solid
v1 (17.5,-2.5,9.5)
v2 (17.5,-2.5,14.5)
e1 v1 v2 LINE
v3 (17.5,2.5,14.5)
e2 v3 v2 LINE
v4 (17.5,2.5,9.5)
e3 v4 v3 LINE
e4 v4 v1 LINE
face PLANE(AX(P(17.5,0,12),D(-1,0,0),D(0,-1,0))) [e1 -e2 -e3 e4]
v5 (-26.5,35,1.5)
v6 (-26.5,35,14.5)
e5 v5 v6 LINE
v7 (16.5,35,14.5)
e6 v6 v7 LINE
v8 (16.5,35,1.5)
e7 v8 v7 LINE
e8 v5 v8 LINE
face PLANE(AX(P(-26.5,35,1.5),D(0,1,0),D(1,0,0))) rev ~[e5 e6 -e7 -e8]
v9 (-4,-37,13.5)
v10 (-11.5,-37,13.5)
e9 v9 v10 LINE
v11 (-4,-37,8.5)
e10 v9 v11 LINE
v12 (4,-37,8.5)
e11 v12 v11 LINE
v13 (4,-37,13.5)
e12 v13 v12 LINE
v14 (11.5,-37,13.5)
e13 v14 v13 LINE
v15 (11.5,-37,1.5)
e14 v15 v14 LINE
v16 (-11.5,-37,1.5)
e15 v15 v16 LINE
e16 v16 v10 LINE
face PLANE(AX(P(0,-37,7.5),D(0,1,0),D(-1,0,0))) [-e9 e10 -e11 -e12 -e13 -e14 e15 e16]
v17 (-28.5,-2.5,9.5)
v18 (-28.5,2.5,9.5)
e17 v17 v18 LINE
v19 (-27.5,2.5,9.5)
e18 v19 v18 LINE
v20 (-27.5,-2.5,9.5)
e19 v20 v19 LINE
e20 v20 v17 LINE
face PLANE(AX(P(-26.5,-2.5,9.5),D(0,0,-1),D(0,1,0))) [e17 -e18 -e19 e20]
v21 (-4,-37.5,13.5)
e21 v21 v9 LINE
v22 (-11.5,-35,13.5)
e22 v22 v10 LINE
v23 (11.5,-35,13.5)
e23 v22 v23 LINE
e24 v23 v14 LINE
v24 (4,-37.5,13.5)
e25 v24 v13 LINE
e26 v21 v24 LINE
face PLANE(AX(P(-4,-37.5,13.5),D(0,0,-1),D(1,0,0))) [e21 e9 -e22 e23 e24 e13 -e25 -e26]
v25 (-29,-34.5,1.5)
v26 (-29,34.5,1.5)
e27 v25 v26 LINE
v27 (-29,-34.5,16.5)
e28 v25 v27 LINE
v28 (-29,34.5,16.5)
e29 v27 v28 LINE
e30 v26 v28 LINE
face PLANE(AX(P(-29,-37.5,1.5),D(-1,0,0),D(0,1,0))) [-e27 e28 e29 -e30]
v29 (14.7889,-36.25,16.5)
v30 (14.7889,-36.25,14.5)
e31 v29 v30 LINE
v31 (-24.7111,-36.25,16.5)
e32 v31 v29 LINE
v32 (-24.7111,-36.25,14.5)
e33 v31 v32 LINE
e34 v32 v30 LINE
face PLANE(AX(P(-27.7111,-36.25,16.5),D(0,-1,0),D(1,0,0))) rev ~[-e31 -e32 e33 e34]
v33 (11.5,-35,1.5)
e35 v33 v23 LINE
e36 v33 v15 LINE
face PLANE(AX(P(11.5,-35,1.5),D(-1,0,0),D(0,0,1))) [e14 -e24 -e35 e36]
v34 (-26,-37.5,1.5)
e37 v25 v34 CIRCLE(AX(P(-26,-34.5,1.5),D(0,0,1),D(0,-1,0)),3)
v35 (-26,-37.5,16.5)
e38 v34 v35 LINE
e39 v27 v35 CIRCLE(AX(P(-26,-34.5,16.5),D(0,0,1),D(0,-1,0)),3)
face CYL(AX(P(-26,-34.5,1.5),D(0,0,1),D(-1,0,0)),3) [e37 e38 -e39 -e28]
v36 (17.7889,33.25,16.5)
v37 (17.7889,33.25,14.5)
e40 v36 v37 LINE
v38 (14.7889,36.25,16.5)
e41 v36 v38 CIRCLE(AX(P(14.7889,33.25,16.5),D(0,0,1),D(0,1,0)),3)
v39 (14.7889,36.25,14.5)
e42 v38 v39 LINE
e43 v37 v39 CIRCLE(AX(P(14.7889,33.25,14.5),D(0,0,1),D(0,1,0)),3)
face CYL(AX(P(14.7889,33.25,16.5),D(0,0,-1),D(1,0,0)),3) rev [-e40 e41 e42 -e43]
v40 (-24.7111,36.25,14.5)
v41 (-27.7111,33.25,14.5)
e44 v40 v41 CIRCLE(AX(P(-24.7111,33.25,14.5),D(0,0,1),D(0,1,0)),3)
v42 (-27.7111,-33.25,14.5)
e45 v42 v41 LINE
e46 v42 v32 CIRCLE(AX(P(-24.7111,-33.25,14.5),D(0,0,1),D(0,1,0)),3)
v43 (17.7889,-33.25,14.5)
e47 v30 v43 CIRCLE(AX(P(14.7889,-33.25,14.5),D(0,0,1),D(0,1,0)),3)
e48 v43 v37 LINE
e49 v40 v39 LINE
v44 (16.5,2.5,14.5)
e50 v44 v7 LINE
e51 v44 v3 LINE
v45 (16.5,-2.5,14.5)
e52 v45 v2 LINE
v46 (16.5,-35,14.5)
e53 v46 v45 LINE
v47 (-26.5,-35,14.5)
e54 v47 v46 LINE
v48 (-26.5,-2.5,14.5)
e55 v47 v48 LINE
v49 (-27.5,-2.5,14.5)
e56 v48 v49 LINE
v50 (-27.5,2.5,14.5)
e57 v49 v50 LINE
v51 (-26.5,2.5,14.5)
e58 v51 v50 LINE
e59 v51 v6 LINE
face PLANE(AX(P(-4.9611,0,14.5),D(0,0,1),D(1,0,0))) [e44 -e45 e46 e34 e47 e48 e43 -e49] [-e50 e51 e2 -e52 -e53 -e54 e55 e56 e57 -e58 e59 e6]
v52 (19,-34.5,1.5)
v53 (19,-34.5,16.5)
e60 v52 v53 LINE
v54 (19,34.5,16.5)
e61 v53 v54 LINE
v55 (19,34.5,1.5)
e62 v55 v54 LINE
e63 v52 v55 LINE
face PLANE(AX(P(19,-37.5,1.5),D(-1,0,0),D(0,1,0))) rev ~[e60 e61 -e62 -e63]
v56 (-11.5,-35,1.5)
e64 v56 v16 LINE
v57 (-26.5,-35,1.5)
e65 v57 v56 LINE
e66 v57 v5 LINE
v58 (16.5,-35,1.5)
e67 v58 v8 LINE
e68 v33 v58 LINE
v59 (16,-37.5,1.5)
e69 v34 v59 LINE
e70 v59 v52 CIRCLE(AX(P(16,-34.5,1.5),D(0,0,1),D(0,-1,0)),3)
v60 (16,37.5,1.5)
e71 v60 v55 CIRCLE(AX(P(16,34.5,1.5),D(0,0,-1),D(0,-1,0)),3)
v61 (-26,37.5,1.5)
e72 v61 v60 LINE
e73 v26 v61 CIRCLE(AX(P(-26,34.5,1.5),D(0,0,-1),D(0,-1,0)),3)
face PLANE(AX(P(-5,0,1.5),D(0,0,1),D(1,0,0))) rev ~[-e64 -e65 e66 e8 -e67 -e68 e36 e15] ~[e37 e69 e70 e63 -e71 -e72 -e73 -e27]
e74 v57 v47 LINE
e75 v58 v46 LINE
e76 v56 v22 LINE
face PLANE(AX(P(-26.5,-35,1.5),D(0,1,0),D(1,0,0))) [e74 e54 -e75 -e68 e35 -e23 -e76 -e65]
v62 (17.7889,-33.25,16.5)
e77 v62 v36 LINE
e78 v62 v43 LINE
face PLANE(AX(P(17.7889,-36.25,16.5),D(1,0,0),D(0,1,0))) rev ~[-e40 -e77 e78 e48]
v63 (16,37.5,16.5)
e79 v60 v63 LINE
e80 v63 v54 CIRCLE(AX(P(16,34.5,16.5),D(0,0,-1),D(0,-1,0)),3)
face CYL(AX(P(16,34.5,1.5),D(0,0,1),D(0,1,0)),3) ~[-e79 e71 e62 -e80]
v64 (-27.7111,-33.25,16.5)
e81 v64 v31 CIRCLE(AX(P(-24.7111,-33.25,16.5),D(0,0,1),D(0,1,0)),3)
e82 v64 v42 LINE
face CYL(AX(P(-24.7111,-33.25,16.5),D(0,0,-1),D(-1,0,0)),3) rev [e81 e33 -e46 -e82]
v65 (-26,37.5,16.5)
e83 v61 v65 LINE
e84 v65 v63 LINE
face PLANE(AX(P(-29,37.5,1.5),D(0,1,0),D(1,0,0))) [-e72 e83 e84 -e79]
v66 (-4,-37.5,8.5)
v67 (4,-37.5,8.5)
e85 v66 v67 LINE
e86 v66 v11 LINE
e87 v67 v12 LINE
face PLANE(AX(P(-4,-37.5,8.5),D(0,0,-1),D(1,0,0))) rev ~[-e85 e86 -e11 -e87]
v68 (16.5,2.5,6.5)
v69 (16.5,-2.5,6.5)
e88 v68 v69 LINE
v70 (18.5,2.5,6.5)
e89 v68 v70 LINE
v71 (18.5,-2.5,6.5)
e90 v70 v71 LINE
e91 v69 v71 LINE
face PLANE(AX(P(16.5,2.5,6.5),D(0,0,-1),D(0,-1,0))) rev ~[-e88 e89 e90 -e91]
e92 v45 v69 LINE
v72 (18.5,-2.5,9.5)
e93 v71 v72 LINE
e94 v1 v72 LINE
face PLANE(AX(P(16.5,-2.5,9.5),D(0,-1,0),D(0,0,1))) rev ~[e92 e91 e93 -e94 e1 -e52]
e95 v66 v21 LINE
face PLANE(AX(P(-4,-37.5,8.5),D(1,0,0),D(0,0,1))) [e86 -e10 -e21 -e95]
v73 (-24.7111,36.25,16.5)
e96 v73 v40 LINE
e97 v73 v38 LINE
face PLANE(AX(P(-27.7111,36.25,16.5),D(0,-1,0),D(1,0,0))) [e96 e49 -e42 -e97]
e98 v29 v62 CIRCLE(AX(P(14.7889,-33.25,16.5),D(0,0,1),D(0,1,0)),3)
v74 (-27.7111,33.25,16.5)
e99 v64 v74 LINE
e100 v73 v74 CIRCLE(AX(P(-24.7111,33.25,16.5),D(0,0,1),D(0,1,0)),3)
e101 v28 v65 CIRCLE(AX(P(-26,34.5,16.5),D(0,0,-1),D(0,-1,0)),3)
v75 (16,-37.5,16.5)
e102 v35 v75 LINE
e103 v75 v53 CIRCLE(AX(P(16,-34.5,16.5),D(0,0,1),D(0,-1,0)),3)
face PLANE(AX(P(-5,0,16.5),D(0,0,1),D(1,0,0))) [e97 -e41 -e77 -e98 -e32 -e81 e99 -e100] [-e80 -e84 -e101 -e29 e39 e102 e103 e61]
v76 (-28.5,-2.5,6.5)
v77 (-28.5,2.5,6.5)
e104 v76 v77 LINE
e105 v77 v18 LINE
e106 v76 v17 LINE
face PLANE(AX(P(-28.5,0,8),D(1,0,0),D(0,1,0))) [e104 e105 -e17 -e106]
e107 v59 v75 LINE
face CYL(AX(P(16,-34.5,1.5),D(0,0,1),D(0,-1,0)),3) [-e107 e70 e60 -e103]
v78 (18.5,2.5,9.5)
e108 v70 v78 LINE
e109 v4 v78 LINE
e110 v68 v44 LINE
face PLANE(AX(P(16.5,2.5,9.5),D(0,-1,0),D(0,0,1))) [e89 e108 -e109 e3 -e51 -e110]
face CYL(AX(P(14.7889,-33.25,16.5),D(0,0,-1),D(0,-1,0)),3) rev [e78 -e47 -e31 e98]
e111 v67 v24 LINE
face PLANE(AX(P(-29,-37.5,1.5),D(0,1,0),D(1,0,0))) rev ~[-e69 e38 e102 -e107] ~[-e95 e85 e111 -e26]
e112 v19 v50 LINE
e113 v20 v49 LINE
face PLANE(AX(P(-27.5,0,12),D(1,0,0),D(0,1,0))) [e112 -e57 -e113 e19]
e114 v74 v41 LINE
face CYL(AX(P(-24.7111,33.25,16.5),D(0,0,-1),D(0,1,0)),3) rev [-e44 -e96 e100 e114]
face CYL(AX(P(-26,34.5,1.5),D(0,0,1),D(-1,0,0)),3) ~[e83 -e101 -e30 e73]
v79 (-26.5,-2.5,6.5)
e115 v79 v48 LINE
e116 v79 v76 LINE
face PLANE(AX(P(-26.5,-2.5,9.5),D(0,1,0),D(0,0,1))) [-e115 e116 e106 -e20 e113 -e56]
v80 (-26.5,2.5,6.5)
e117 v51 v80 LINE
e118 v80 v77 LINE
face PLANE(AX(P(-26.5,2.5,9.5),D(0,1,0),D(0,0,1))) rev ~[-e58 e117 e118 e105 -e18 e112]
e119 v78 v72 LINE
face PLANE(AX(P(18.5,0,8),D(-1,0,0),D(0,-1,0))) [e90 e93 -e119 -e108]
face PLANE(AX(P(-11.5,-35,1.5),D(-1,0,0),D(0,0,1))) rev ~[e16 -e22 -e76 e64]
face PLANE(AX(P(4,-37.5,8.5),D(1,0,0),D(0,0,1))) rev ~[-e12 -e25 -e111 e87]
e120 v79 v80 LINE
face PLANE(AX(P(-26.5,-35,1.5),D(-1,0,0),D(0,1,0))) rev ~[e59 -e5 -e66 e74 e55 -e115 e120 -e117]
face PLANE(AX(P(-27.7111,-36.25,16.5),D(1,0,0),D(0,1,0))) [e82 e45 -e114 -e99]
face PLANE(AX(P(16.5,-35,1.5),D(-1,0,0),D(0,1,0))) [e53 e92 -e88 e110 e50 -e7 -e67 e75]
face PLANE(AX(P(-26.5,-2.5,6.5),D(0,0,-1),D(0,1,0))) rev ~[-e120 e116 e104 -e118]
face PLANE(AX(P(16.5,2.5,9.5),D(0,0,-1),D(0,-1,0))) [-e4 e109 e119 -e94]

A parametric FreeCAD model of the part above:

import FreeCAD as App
import Part
import Sketcher
from FreeCAD import Vector


def edges_at(feature, points):
    """Names of the edges that pass closest to the given points."""
    edges = feature.Shape.Edges
    near = lambda p: min(range(len(edges)), key=lambda i: edges[i].distToShape(Part.Vertex(*p))[0])
    return sorted({f"Edge{near(p) + 1}" for p in points})

doc = App.newDocument("Part")
params = doc.addObject("Spreadsheet::Sheet", "Params")
for row, (alias, value) in enumerate([
    ("sketch1_width", "48 mm"),
    ("sketch1_width2", "43 mm"),
    ("sketch1_height", "75 mm"),
    ("sketch1_height2", "70 mm"),
    ("pad1_length", "15 mm"),
    ("sketch2_width", "45.5 mm"),
    ("sketch2_height", "72.5 mm"),
    ("pocket1_length", "2 mm"),
    ("fillet_radius", "3 mm"),
    ("fillet2_radius", "3 mm"),
    ("fillet3_radius", "3 mm"),
    ("fillet4_radius", "3 mm"),
    ("fillet5_radius", "3 mm"),
    ("fillet6_radius", "3 mm"),
    ("sketch3_width", "5 mm"),
    ("pocket2_length", "1 mm"),
    ("sketch4_width", "5 mm"),
    ("sketch4_height", "3 mm"),
    ("pocket3_length", "2 mm"),
    ("sketch5_width", "5 mm"),
    ("pocket4_length", "1 mm"),
    ("sketch6_width", "5 mm"),
    ("sketch6_height", "3 mm"),
    ("pocket5_length", "2 mm"),
    ("sketch7_width", "23 mm"),
    ("sketch7_height", "12 mm"),
    ("pocket6_length", "2 mm"),
    ("sketch8_width", "8 mm"),
    ("sketch8_height", "5 mm"),
    ("pocket7_length", "5 mm"),
], start=1):
    params.set(f"A{row}", alias)
    params.set(f"B{row}", "=" + value)
    params.setAlias(f"B{row}", alias)

body = doc.addObject("PartDesign::Body", "Body")

# Sketch on XY plane
sketch1 = body.newObject("Sketcher::SketchObject", "Sketch")
sketch1.AttachmentSupport = (doc.getObject("XY_Plane"), [""])
sketch1.MapMode = "FlatFace"
sketch1.AttachmentOffset = App.Placement(Vector(0, 0, 1.5), App.Rotation())
sketch1.addGeometry([
    Part.LineSegment(Vector(-29, 37.5, 0), Vector(-29, -37.5, 0)),  # 0
    Part.LineSegment(Vector(-29, -37.5, 0), Vector(19, -37.5, 0)),  # 1
    Part.LineSegment(Vector(19, -37.5, 0), Vector(19, 37.5, 0)),  # 2
    Part.LineSegment(Vector(19, 37.5, 0), Vector(-29, 37.5, 0)),  # 3
    Part.LineSegment(Vector(16.5, -35, 0), Vector(-26.5, -35, 0)),  # 4
    Part.LineSegment(Vector(-26.5, -35, 0), Vector(-26.5, 35, 0)),  # 5
    Part.LineSegment(Vector(-26.5, 35, 0), Vector(16.5, 35, 0)),  # 6
    Part.LineSegment(Vector(16.5, 35, 0), Vector(16.5, -35, 0)),  # 7
], False)
sketch1.addConstraint([
    Sketcher.Constraint("Coincident", 0, 2, 1, 1),
    Sketcher.Constraint("Coincident", 1, 2, 2, 1),
    Sketcher.Constraint("Coincident", 2, 2, 3, 1),
    Sketcher.Constraint("Coincident", 3, 2, 0, 1),
    Sketcher.Constraint("Coincident", 4, 2, 5, 1),
    Sketcher.Constraint("Coincident", 5, 2, 6, 1),
    Sketcher.Constraint("Coincident", 6, 2, 7, 1),
    Sketcher.Constraint("Coincident", 7, 2, 4, 1),
    Sketcher.Constraint("Vertical", 0),
    Sketcher.Constraint("Horizontal", 1),
    Sketcher.Constraint("Vertical", 2),
    Sketcher.Constraint("Horizontal", 3),
    Sketcher.Constraint("Horizontal", 4),
    Sketcher.Constraint("Vertical", 5),
    Sketcher.Constraint("Horizontal", 6),
    Sketcher.Constraint("Vertical", 7),
    Sketcher.Constraint("DistanceX", 1, 1, 1, 2, 48.0),
    Sketcher.Constraint("DistanceX", 4, 2, 4, 1, 43.0),
    Sketcher.Constraint("DistanceY", 0, 2, 0, 1, 75.0),
    Sketcher.Constraint("DistanceY", 5, 1, 5, 2, 70.0),
    Sketcher.Constraint("DistanceX", 0, 2, -1, 1, 29.0),
    Sketcher.Constraint("DistanceY", 4, 2, -1, 1, 35.0),
    Sketcher.Constraint("DistanceY", 0, 2, -1, 1, 37.5),
    Sketcher.Constraint("DistanceX", 4, 2, -1, 1, 26.5),
])
sketch1.setExpression("Constraints[16]", "Params.sketch1_width")
sketch1.setExpression("Constraints[17]", "Params.sketch1_width2")
sketch1.setExpression("Constraints[18]", "Params.sketch1_height")
sketch1.setExpression("Constraints[19]", "Params.sketch1_height2")
pad1 = body.newObject("PartDesign::Pad", "Pad")
pad1.Profile = sketch1
pad1.setExpression("Length", "Params.pad1_length")

# Sketch on XY plane
sketch2 = body.newObject("Sketcher::SketchObject", "Sketch001")
sketch2.AttachmentSupport = (doc.getObject("XY_Plane"), [""])
sketch2.MapMode = "FlatFace"
sketch2.AttachmentOffset = App.Placement(Vector(0, 0, 16.5), App.Rotation())
sketch2.addGeometry([
    Part.LineSegment(Vector(-27.7111, 36.25, 0), Vector(-27.7111, -36.25, 0)),
    Part.LineSegment(Vector(-27.7111, -36.25, 0), Vector(17.7889, -36.25, 0)),
    Part.LineSegment(Vector(17.7889, -36.25, 0), Vector(17.7889, 36.25, 0)),
    Part.LineSegment(Vector(17.7889, 36.25, 0), Vector(-27.7111, 36.25, 0)),
], False)
sketch2.addConstraint([
    Sketcher.Constraint("Coincident", 0, 2, 1, 1),
    Sketcher.Constraint("Coincident", 1, 2, 2, 1),
    Sketcher.Constraint("Coincident", 2, 2, 3, 1),
    Sketcher.Constraint("Coincident", 3, 2, 0, 1),
    Sketcher.Constraint("Vertical", 0),
    Sketcher.Constraint("Horizontal", 1),
    Sketcher.Constraint("Vertical", 2),
    Sketcher.Constraint("Horizontal", 3),
    Sketcher.Constraint("DistanceX", 1, 1, 1, 2, 45.5),
    Sketcher.Constraint("DistanceY", 0, 2, 0, 1, 72.5),
    Sketcher.Constraint("DistanceY", 0, 2, -1, 1, 36.25),
    Sketcher.Constraint("DistanceX", 0, 2, -1, 1, 27.7111),
])
sketch2.setExpression("Constraints[8]", "Params.sketch2_width")
sketch2.setExpression("Constraints[9]", "Params.sketch2_height")
pocket1 = body.newObject("PartDesign::Pocket", "Pocket")
pocket1.Profile = sketch2
pocket1.setExpression("Length", "Params.pocket1_length")
doc.recompute()

fillet = body.newObject("PartDesign::Fillet", "Fillet")
fillet.Base = (pocket1, edges_at(pocket1, [(-27.711, 36.25, 15.5)]))
fillet.setExpression("Radius", "Params.fillet_radius")
doc.recompute()

fillet2 = body.newObject("PartDesign::Fillet", "Fillet001")
fillet2.Base = (fillet, edges_at(fillet, [(-27.711, -36.25, 15.5)]))
fillet2.setExpression("Radius", "Params.fillet2_radius")
doc.recompute()

fillet3 = body.newObject("PartDesign::Fillet", "Fillet002")
fillet3.Base = (fillet2, edges_at(fillet2, [(17.789, -36.25, 15.5)]))
fillet3.setExpression("Radius", "Params.fillet3_radius")
doc.recompute()

fillet4 = body.newObject("PartDesign::Fillet", "Fillet003")
fillet4.Base = (fillet3, edges_at(fillet3, [(17.789, 36.25, 15.5)]))
fillet4.setExpression("Radius", "Params.fillet4_radius")
doc.recompute()

fillet5 = body.newObject("PartDesign::Fillet", "Fillet004")
fillet5.Base = (fillet4, edges_at(fillet4, [(-29, 37.5, 9), (19, 37.5, 9)]))
fillet5.setExpression("Radius", "Params.fillet5_radius")
doc.recompute()

fillet6 = body.newObject("PartDesign::Fillet", "Fillet005")
fillet6.Base = (fillet5, edges_at(fillet5, [(-29, -37.5, 9), (19, -37.5, 9)]))
fillet6.setExpression("Radius", "Params.fillet6_radius")

# Sketch on YZ plane
sketch3 = body.newObject("Sketcher::SketchObject", "Sketch002")
sketch3.AttachmentSupport = (doc.getObject("YZ_Plane"), [""])
sketch3.MapMode = "FlatFace"
sketch3.AttachmentOffset = App.Placement(Vector(0, 0, -26.5), App.Rotation())
sketch3.addGeometry([
    Part.LineSegment(Vector(-2.5, 14.5, 0), Vector(-2.5, 9.5, 0)),
    Part.LineSegment(Vector(-2.5, 9.5, 0), Vector(2.5, 9.5, 0)),
    Part.LineSegment(Vector(2.5, 9.5, 0), Vector(2.5, 14.5, 0)),
    Part.LineSegment(Vector(2.5, 14.5, 0), Vector(-2.5, 14.5, 0)),
], False)
sketch3.addConstraint([
    Sketcher.Constraint("Coincident", 0, 2, 1, 1),
    Sketcher.Constraint("Coincident", 1, 2, 2, 1),
    Sketcher.Constraint("Coincident", 2, 2, 3, 1),
    Sketcher.Constraint("Coincident", 3, 2, 0, 1),
    Sketcher.Constraint("Vertical", 0),
    Sketcher.Constraint("Horizontal", 1),
    Sketcher.Constraint("Vertical", 2),
    Sketcher.Constraint("Horizontal", 3),
    Sketcher.Constraint("Equal", 3, 0),
    Sketcher.Constraint("DistanceX", 1, 1, 1, 2, 5.0),
    Sketcher.Constraint("DistanceX", 0, 2, -1, 1, 2.5),
    Sketcher.Constraint("DistanceY", -1, 1, 0, 2, 9.5),
])
sketch3.setExpression("Constraints[9]", "Params.sketch3_width")
pocket2 = body.newObject("PartDesign::Pocket", "Pocket001")
pocket2.Profile = sketch3
pocket2.setExpression("Length", "Params.pocket2_length")

# Sketch on YZ plane
sketch4 = body.newObject("Sketcher::SketchObject", "Sketch003")
sketch4.AttachmentSupport = (doc.getObject("YZ_Plane"), [""])
sketch4.MapMode = "FlatFace"
sketch4.AttachmentOffset = App.Placement(Vector(0, 0, -26.5), App.Rotation())
sketch4.addGeometry([
    Part.LineSegment(Vector(-2.5, 9.5, 0), Vector(-2.5, 6.5, 0)),
    Part.LineSegment(Vector(-2.5, 6.5, 0), Vector(2.5, 6.5, 0)),
    Part.LineSegment(Vector(2.5, 6.5, 0), Vector(2.5, 9.5, 0)),
    Part.LineSegment(Vector(2.5, 9.5, 0), Vector(-2.5, 9.5, 0)),
], False)
sketch4.addConstraint([
    Sketcher.Constraint("Coincident", 0, 2, 1, 1),
    Sketcher.Constraint("Coincident", 1, 2, 2, 1),
    Sketcher.Constraint("Coincident", 2, 2, 3, 1),
    Sketcher.Constraint("Coincident", 3, 2, 0, 1),
    Sketcher.Constraint("Vertical", 0),
    Sketcher.Constraint("Horizontal", 1),
    Sketcher.Constraint("Vertical", 2),
    Sketcher.Constraint("Horizontal", 3),
    Sketcher.Constraint("DistanceX", 1, 1, 1, 2, 5.0),
    Sketcher.Constraint("DistanceY", 0, 2, 0, 1, 3.0),
    Sketcher.Constraint("DistanceX", 0, 2, -1, 1, 2.5),
    Sketcher.Constraint("DistanceY", -1, 1, 0, 2, 6.5),
])
sketch4.setExpression("Constraints[8]", "Params.sketch4_width")
sketch4.setExpression("Constraints[9]", "Params.sketch4_height")
pocket3 = body.newObject("PartDesign::Pocket", "Pocket002")
pocket3.Profile = sketch4
pocket3.setExpression("Length", "Params.pocket3_length")

# Sketch on YZ plane
sketch5 = body.newObject("Sketcher::SketchObject", "Sketch004")
sketch5.AttachmentSupport = (doc.getObject("YZ_Plane"), [""])
sketch5.MapMode = "FlatFace"
sketch5.AttachmentOffset = App.Placement(Vector(0, 0, 16.5), App.Rotation())
sketch5.addGeometry([
    Part.LineSegment(Vector(2.5, 14.5, 0), Vector(2.5, 9.5, 0)),
    Part.LineSegment(Vector(2.5, 9.5, 0), Vector(-2.5, 9.5, 0)),
    Part.LineSegment(Vector(-2.5, 9.5, 0), Vector(-2.5, 14.5, 0)),
    Part.LineSegment(Vector(-2.5, 14.5, 0), Vector(2.5, 14.5, 0)),
], False)
sketch5.addConstraint([
    Sketcher.Constraint("Coincident", 0, 2, 1, 1),
    Sketcher.Constraint("Coincident", 1, 2, 2, 1),
    Sketcher.Constraint("Coincident", 2, 2, 3, 1),
    Sketcher.Constraint("Coincident", 3, 2, 0, 1),
    Sketcher.Constraint("Vertical", 0),
    Sketcher.Constraint("Horizontal", 1),
    Sketcher.Constraint("Vertical", 2),
    Sketcher.Constraint("Horizontal", 3),
    Sketcher.Constraint("Equal", 3, 0),
    Sketcher.Constraint("DistanceX", 1, 2, 1, 1, 5.0),
    Sketcher.Constraint("DistanceX", -1, 1, 0, 2, 2.5),
    Sketcher.Constraint("DistanceY", -1, 1, 0, 2, 9.5),
])
sketch5.setExpression("Constraints[9]", "Params.sketch5_width")
pocket4 = body.newObject("PartDesign::Pocket", "Pocket003")
pocket4.Profile = sketch5
pocket4.setExpression("Length", "Params.pocket4_length")
pocket4.Reversed = True

# Sketch on YZ plane
sketch6 = body.newObject("Sketcher::SketchObject", "Sketch005")
sketch6.AttachmentSupport = (doc.getObject("YZ_Plane"), [""])
sketch6.MapMode = "FlatFace"
sketch6.AttachmentOffset = App.Placement(Vector(0, 0, 16.5), App.Rotation())
sketch6.addGeometry([
    Part.LineSegment(Vector(2.5, 9.5, 0), Vector(2.5, 6.5, 0)),
    Part.LineSegment(Vector(2.5, 6.5, 0), Vector(-2.5, 6.5, 0)),
    Part.LineSegment(Vector(-2.5, 6.5, 0), Vector(-2.5, 9.5, 0)),
    Part.LineSegment(Vector(-2.5, 9.5, 0), Vector(2.5, 9.5, 0)),
], False)
sketch6.addConstraint([
    Sketcher.Constraint("Coincident", 0, 2, 1, 1),
    Sketcher.Constraint("Coincident", 1, 2, 2, 1),
    Sketcher.Constraint("Coincident", 2, 2, 3, 1),
    Sketcher.Constraint("Coincident", 3, 2, 0, 1),
    Sketcher.Constraint("Vertical", 0),
    Sketcher.Constraint("Horizontal", 1),
    Sketcher.Constraint("Vertical", 2),
    Sketcher.Constraint("Horizontal", 3),
    Sketcher.Constraint("DistanceX", 1, 2, 1, 1, 5.0),
    Sketcher.Constraint("DistanceY", 0, 2, 0, 1, 3.0),
    Sketcher.Constraint("DistanceX", -1, 1, 0, 2, 2.5),
    Sketcher.Constraint("DistanceY", -1, 1, 0, 2, 6.5),
])
sketch6.setExpression("Constraints[8]", "Params.sketch6_width")
sketch6.setExpression("Constraints[9]", "Params.sketch6_height")
pocket5 = body.newObject("PartDesign::Pocket", "Pocket004")
pocket5.Profile = sketch6
pocket5.setExpression("Length", "Params.pocket5_length")
pocket5.Reversed = True

# Sketch on XZ plane
sketch7 = body.newObject("Sketcher::SketchObject", "Sketch006")
sketch7.AttachmentSupport = (doc.getObject("XZ_Plane"), [""])
sketch7.MapMode = "FlatFace"
sketch7.AttachmentOffset = App.Placement(Vector(0, 0, 35), App.Rotation())
sketch7.addGeometry([
    Part.LineSegment(Vector(11.5, 13.5, 0), Vector(11.5, 1.5, 0)),
    Part.LineSegment(Vector(11.5, 1.5, 0), Vector(-11.5, 1.5, 0)),
    Part.LineSegment(Vector(-11.5, 1.5, 0), Vector(-11.5, 13.5, 0)),
    Part.LineSegment(Vector(-11.5, 13.5, 0), Vector(11.5, 13.5, 0)),
], False)
sketch7.addConstraint([
    Sketcher.Constraint("Coincident", 0, 2, 1, 1),
    Sketcher.Constraint("Coincident", 1, 2, 2, 1),
    Sketcher.Constraint("Coincident", 2, 2, 3, 1),
    Sketcher.Constraint("Coincident", 3, 2, 0, 1),
    Sketcher.Constraint("Vertical", 0),
    Sketcher.Constraint("Horizontal", 1),
    Sketcher.Constraint("Vertical", 2),
    Sketcher.Constraint("Horizontal", 3),
    Sketcher.Constraint("DistanceX", 1, 2, 1, 1, 23.0),
    Sketcher.Constraint("DistanceY", 0, 2, 0, 1, 12.0),
    Sketcher.Constraint("DistanceX", -1, 1, 0, 2, 11.5),
    Sketcher.Constraint("DistanceY", -1, 1, 0, 2, 1.5),
])
sketch7.setExpression("Constraints[8]", "Params.sketch7_width")
sketch7.setExpression("Constraints[9]", "Params.sketch7_height")
pocket6 = body.newObject("PartDesign::Pocket", "Pocket005")
pocket6.Profile = sketch7
pocket6.setExpression("Length", "Params.pocket6_length")
pocket6.Reversed = True

# Sketch on XZ plane
sketch8 = body.newObject("Sketcher::SketchObject", "Sketch007")
sketch8.AttachmentSupport = (doc.getObject("XZ_Plane"), [""])
sketch8.MapMode = "FlatFace"
sketch8.AttachmentOffset = App.Placement(Vector(0, 0, 37.5), App.Rotation())
sketch8.addGeometry([
    Part.LineSegment(Vector(-4, 13.5, 0), Vector(-4, 8.5, 0)),
    Part.LineSegment(Vector(-4, 8.5, 0), Vector(4, 8.5, 0)),
    Part.LineSegment(Vector(4, 8.5, 0), Vector(4, 13.5, 0)),
    Part.LineSegment(Vector(4, 13.5, 0), Vector(-4, 13.5, 0)),
], False)
sketch8.addConstraint([
    Sketcher.Constraint("Coincident", 0, 2, 1, 1),
    Sketcher.Constraint("Coincident", 1, 2, 2, 1),
    Sketcher.Constraint("Coincident", 2, 2, 3, 1),
    Sketcher.Constraint("Coincident", 3, 2, 0, 1),
    Sketcher.Constraint("Vertical", 0),
    Sketcher.Constraint("Horizontal", 1),
    Sketcher.Constraint("Vertical", 2),
    Sketcher.Constraint("Horizontal", 3),
    Sketcher.Constraint("DistanceX", 1, 1, 1, 2, 8.0),
    Sketcher.Constraint("DistanceY", 0, 2, 0, 1, 5.0),
    Sketcher.Constraint("DistanceX", 0, 2, -1, 1, 4.0),
    Sketcher.Constraint("DistanceY", -1, 1, 0, 2, 8.5),
])
sketch8.setExpression("Constraints[8]", "Params.sketch8_width")
sketch8.setExpression("Constraints[9]", "Params.sketch8_height")
pocket7 = body.newObject("PartDesign::Pocket", "Pocket006")
pocket7.Profile = sketch8
pocket7.setExpression("Length", "Params.pocket7_length")

doc.recompute()
